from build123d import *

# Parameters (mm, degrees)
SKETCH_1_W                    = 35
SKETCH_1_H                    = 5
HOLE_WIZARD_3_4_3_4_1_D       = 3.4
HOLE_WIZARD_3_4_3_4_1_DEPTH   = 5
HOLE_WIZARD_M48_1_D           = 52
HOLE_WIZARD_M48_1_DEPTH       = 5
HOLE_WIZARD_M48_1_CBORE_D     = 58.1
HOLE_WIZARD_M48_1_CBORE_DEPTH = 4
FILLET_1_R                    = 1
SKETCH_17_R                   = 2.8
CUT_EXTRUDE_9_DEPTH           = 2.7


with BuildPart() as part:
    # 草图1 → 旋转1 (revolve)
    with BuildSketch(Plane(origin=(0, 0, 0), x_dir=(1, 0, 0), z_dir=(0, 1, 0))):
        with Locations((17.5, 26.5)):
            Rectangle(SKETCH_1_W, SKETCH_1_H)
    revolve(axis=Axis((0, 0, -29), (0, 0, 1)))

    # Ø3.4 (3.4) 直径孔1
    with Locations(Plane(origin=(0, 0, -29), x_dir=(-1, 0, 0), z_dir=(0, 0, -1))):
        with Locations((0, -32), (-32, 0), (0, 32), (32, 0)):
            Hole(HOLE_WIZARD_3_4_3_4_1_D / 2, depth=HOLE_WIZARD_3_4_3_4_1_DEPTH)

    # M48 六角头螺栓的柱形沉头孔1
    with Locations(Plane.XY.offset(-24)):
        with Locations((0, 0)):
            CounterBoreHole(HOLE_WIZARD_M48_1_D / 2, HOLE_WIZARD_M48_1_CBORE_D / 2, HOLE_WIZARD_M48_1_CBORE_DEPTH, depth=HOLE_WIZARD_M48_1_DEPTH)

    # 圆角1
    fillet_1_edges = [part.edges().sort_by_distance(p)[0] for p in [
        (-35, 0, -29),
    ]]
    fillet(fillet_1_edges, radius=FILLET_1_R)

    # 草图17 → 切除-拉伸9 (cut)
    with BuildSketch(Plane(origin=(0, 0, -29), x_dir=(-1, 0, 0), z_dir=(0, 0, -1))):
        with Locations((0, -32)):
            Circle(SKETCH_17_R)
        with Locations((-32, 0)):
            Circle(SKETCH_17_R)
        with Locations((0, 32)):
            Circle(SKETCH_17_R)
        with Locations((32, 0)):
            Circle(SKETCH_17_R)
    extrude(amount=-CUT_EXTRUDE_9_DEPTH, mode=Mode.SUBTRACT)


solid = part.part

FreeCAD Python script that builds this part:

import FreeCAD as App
import Part
import Sketcher


def edges_at(feature, points):
    """Names of the edges that pass closest to the given points."""
    edges = feature.Shape.Edges
    near = lambda p: min(range(len(edges)), key=lambda i: edges[i].distToShape(Part.Vertex(*p))[0])
    return sorted({f"Edge{near(p) + 1}" for p in points})


def add_polygon(sketch, points):
    """Adds a closed chain of lines whose ends are joined by coincident constraints."""
    first, n = sketch.GeometryCount, len(points)
    for a, b in zip(points, points[1:] + points[:1]):
        sketch.addGeometry(Part.LineSegment(App.Vector(*a, 0), App.Vector(*b, 0)), False)
    for i in range(n):
        sketch.addConstraint(Sketcher.Constraint("Coincident", first + i, 2, first + (i + 1) % n, 1))

doc = App.newDocument("Part")
body = doc.addObject("PartDesign::Body", "Body")

# Sketch on XZ plane
sketch1 = body.newObject("Sketcher::SketchObject", "Sketch")
sketch1.AttachmentSupport = (doc.getObject("XZ_Plane"), [""])
sketch1.MapMode = "FlatFace"
add_polygon(sketch1, [(0, -29), (0, -24), (35, -24), (35, -29)])  # lines 0-3
sketch1.addConstraint(Sketcher.Constraint("Vertical", 0))
sketch1.addConstraint(Sketcher.Constraint("Horizontal", 1))
sketch1.addConstraint(Sketcher.Constraint("Vertical", 2))
sketch1.addConstraint(Sketcher.Constraint("Horizontal", 3))
sketch1.addConstraint(Sketcher.Constraint("PointOnObject", 0, 2, -2))
sketch1.addConstraint(Sketcher.Constraint("DistanceX", 1, 1, 1, 2, 35.0))
sketch1.addConstraint(Sketcher.Constraint("DistanceY", 0, 1, 0, 2, 5.0))
sketch1.addConstraint(Sketcher.Constraint("DistanceY", 0, 2, -1, 1, 24.0))
revolution = body.newObject("PartDesign::Revolution", "Revolution")
revolution.Profile = sketch1
revolution.ReferenceAxis = (sketch1, ["V_Axis"])
revolution.Angle = 360

# Sketch on XY plane
sketch2 = body.newObject("Sketcher::SketchObject", "Sketch001")
sketch2.AttachmentSupport = (doc.getObject("XY_Plane"), [""])
sketch2.MapMode = "FlatFace"
sketch2.AttachmentOffset = App.Placement(App.Vector(0, 0, -29), App.Rotation())
sketch2.addGeometry(Part.Circle(App.Vector(0, -32, 0), App.Vector(0, 0, 1), 1.7), False)
sketch2.addGeometry(Part.Circle(App.Vector(32, 0, 0), App.Vector(0, 0, 1), 1.7), False)
sketch2.addGeometry(Part.Circle(App.Vector(0, 32, 0), App.Vector(0, 0, 1), 1.7), False)
sketch2.addGeometry(Part.Circle(App.Vector(-32, 0, 0), App.Vector(0, 0, 1), 1.7), False)
sketch2.addConstraint(Sketcher.Constraint("Equal", 0, 1))
sketch2.addConstraint(Sketcher.Constraint("Equal", 1, 2))
sketch2.addConstraint(Sketcher.Constraint("Equal", 2, 3))
sketch2.addConstraint(Sketcher.Constraint("Symmetric", 0, 3, 2, 3, -1, 1))
sketch2.addConstraint(Sketcher.Constraint("Symmetric", 1, 3, 3, 3, -1, 1))
sketch2.addConstraint(Sketcher.Constraint("PointOnObject", 0, 3, -2))
sketch2.addConstraint(Sketcher.Constraint("PointOnObject", 1, 3, -1))
sketch2.addConstraint(Sketcher.Constraint("Diameter", 0, 3.4))
sketch2.addConstraint(Sketcher.Constraint("DistanceY", 0, 3, -1, 1, 32.0))
sketch2.addConstraint(Sketcher.Constraint("DistanceX", -1, 1, 1, 3, 32.0))
doc.recompute()
hole = body.newObject("PartDesign::Hole", "Hole")
hole.Profile = sketch2
hole.ThreadType = "None"
hole.Diameter = 3.4
hole.DepthType = "Dimension"
hole.Depth = 5
hole.DrillPoint = "Flat"
hole.Reversed = True

# Sketch on XY plane
sketch3 = body.newObject("Sketcher::SketchObject", "Sketch002")
sketch3.AttachmentSupport = (doc.getObject("XY_Plane"), [""])
sketch3.MapMode = "FlatFace"
sketch3.AttachmentOffset = App.Placement(App.Vector(0, 0, -24), App.Rotation())
sketch3.addGeometry(Part.Circle(App.Vector(0, 0, 0), App.Vector(0, 0, 1), 26), False)
sketch3.addConstraint(Sketcher.Constraint("Coincident", 0, 3, -1, 1))
sketch3.addConstraint(Sketcher.Constraint("Diameter", 0, 52.0))
doc.recompute()
hole2 = body.newObject("PartDesign::Hole", "Hole001")
hole2.Profile = sketch3
hole2.ThreadType = "None"
hole2.Diameter = 52
hole2.DepthType = "Dimension"
hole2.Depth = 5
hole2.DrillPoint = "Flat"
hole2.HoleCutType = "Counterbore"
hole2.HoleCutDiameter = 58.1
hole2.HoleCutDepth = 4
doc.recompute()

fillet = body.newObject("PartDesign::Fillet", "Fillet")
fillet.Base = (hole2, edges_at(hole2, [(-35, 0, -29)]))
fillet.Radius = 1

# Sketch on XY plane
sketch4 = body.newObject("Sketcher::SketchObject", "Sketch003")
sketch4.AttachmentSupport = (doc.getObject("XY_Plane"), [""])
sketch4.MapMode = "FlatFace"
sketch4.AttachmentOffset = App.Placement(App.Vector(0, 0, -29), App.Rotation())
sketch4.addGeometry(Part.Circle(App.Vector(0, -32, 0), App.Vector(0, 0, 1), 2.8), False)
sketch4.addGeometry(Part.Circle(App.Vector(32, 0, 0), App.Vector(0, 0, 1), 2.8), False)
sketch4.addGeometry(Part.Circle(App.Vector(0, 32, 0), App.Vector(0, 0, 1), 2.8), False)
sketch4.addGeometry(Part.Circle(App.Vector(-32, 0, 0), App.Vector(0, 0, 1), 2.8), False)
sketch4.addConstraint(Sketcher.Constraint("Equal", 0, 1))
sketch4.addConstraint(Sketcher.Constraint("Equal", 1, 2))
sketch4.addConstraint(Sketcher.Constraint("Equal", 2, 3))
sketch4.addConstraint(Sketcher.Constraint("Symmetric", 0, 3, 2, 3, -1, 1))
sketch4.addConstraint(Sketcher.Constraint("Symmetric", 1, 3, 3, 3, -1, 1))
sketch4.addConstraint(Sketcher.Constraint("PointOnObject", 0, 3, -2))
sketch4.addConstraint(Sketcher.Constraint("PointOnObject", 1, 3, -1))
sketch4.addConstraint(Sketcher.Constraint("Diameter", 0, 5.6))
sketch4.addConstraint(Sketcher.Constraint("DistanceY", 0, 3, -1, 1, 32.0))
sketch4.addConstraint(Sketcher.Constraint("DistanceX", -1, 1, 1, 3, 32.0))
pocket1 = body.newObject("PartDesign::Pocket", "Pocket")
pocket1.Profile = sketch4
pocket1.Length = 2.7
pocket1.Reversed = True

doc.recompute()
